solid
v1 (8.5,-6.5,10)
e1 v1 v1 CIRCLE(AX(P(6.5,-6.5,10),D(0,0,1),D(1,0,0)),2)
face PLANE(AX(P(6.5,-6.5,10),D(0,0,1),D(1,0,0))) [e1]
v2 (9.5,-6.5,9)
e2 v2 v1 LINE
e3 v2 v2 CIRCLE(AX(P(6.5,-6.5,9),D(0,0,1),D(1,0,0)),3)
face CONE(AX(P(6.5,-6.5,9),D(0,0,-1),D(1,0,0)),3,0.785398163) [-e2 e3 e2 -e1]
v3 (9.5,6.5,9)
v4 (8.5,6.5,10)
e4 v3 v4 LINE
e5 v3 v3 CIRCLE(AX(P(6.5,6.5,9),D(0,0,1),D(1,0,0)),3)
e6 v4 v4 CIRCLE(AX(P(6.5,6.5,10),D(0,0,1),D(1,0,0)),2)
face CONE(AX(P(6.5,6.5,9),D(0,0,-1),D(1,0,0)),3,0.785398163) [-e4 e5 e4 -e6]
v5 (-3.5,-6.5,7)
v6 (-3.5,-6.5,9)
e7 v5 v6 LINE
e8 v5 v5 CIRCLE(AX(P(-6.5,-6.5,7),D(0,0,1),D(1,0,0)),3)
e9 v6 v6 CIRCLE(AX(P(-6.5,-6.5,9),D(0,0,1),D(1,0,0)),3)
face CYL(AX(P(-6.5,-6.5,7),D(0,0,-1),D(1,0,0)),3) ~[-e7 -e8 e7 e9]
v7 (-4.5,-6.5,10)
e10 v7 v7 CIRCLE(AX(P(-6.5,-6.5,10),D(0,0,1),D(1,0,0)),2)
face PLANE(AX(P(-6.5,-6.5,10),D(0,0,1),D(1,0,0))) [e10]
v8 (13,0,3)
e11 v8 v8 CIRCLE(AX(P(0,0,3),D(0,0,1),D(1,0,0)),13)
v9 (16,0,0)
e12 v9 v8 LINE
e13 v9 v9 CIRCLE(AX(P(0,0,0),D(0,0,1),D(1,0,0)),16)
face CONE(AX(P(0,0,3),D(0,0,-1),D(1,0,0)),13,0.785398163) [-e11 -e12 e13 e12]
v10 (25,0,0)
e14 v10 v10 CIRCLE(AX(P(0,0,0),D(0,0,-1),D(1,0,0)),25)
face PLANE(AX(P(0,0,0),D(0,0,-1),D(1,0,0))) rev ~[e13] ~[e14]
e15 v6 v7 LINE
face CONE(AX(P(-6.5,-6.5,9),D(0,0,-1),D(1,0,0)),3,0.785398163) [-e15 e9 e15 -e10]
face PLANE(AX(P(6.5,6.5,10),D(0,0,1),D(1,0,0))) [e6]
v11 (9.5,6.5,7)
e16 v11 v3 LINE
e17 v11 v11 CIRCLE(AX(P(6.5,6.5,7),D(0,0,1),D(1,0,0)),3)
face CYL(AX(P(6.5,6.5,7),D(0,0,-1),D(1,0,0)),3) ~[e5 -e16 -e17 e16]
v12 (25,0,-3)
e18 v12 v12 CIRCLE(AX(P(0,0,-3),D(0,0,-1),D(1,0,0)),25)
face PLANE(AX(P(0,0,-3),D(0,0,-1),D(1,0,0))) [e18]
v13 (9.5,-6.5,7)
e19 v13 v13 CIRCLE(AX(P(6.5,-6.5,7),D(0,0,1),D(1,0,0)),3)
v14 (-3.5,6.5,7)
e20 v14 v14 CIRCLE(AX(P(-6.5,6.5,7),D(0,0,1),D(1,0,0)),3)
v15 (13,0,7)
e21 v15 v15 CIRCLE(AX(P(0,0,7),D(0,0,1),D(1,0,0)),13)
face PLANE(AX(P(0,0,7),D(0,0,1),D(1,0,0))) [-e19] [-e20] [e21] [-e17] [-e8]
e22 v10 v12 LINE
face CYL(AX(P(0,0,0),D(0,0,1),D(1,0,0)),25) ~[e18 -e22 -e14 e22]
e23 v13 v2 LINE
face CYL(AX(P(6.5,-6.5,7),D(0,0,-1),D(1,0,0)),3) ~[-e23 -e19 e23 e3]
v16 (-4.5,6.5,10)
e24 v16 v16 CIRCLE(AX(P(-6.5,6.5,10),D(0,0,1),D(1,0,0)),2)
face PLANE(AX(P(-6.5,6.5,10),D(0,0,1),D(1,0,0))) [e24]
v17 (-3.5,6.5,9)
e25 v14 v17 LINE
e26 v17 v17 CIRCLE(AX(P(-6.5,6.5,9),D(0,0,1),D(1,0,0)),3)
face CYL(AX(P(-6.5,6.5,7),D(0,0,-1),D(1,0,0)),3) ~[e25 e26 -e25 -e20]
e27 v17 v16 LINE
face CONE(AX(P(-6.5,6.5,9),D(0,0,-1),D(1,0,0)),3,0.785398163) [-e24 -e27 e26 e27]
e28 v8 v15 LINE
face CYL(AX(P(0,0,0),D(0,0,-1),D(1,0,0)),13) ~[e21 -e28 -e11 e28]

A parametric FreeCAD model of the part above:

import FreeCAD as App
import Part
import Sketcher
from FreeCAD import Vector


def edges_at(feature, points):
    """Names of the edges that pass closest to the given points."""
    edges = feature.Shape.Edges
    near = lambda p: min(range(len(edges)), key=lambda i: edges[i].distToShape(Part.Vertex(*p))[0])
    return sorted({f"Edge{near(p) + 1}" for p in points})

doc = App.newDocument("Part")
body = doc.addObject("PartDesign::Body", "Body")

sketch1 = body.newObject("Sketcher::SketchObject", "Sketch")
sketch1.AttachmentSupport = (doc.getObject("XY_Plane"), [""])
sketch1.MapMode = "FlatFace"
sketch1.addGeometry(Part.Circle(Vector(0, 0, 0), Vector(0, 0, 1), 13), False)
sketch1.addConstraint(Sketcher.Constraint("Coincident", 0, 3, -1, 1))
sketch1.addConstraint(Sketcher.Constraint("Diameter", 0, 26.0))
pad1 = body.newObject("PartDesign::Pad", "Pad")
pad1.Profile = sketch1
pad1.Length = 7

sketch2 = body.newObject("Sketcher::SketchObject", "Sketch001")
sketch2.AttachmentSupport = (doc.getObject("XY_Plane"), [""])
sketch2.MapMode = "FlatFace"
sketch2.AttachmentOffset = App.Placement(Vector(0, 0, 7), App.Rotation())
sketch2.addGeometry(Part.Circle(Vector(-6.5, 6.5, 0), Vector(0, 0, 1), 3), False)
sketch2.addGeometry(Part.Circle(Vector(-6.5, -6.5, 0), Vector(0, 0, 1), 3), False)
sketch2.addGeometry(Part.Circle(Vector(6.5, -6.5, 0), Vector(0, 0, 1), 3), False)
sketch2.addGeometry(Part.Circle(Vector(6.5, 6.5, 0), Vector(0, 0, 1), 3), False)
sketch2.addConstraint(Sketcher.Constraint("Equal", 0, 1))
sketch2.addConstraint(Sketcher.Constraint("Equal", 1, 2))
sketch2.addConstraint(Sketcher.Constraint("Equal", 2, 3))
sketch2.addConstraint(Sketcher.Constraint("Symmetric", 0, 3, 2, 3, -1, 1))
sketch2.addConstraint(Sketcher.Constraint("Symmetric", 1, 3, 3, 3, -1, 1))
sketch2.addConstraint(Sketcher.Constraint("Symmetric", 1, 3, 2, 3, -2))
sketch2.addConstraint(Sketcher.Constraint("Diameter", 0, 6.0))
sketch2.addConstraint(Sketcher.Constraint("DistanceY", 1, 3, 0, 3, 13.0))
sketch2.addConstraint(Sketcher.Constraint("DistanceX", 1, 3, 2, 3, 13.0))
pad2 = body.newObject("PartDesign::Pad", "Pad001")
pad2.Profile = sketch2
pad2.Length = 3
doc.recompute()

chamfer = body.newObject("PartDesign::Chamfer", "Chamfer")
chamfer.Base = (pad2, edges_at(pad2, [
    (-9.5, -6.5, 10),
    (3.5, -6.5, 10),
    (-9.5, 6.5, 10),
    (3.5, 6.5, 10),
]))
chamfer.Size = 1

sketch3 = body.newObject("Sketcher::SketchObject", "Sketch002")
sketch3.AttachmentSupport = (doc.getObject("XY_Plane"), [""])
sketch3.MapMode = "FlatFace"
sketch3.addGeometry(Part.Circle(Vector(0, 0, 0), Vector(0, 0, 1), 25), False)
sketch3.addConstraint(Sketcher.Constraint("Coincident", 0, 3, -1, 1))
sketch3.addConstraint(Sketcher.Constraint("Diameter", 0, 50.0))
pad3 = body.newObject("PartDesign::Pad", "Pad002")
pad3.Profile = sketch3
pad3.Length = 3
pad3.Reversed = True
doc.recompute()

chamfer2 = body.newObject("PartDesign::Chamfer", "Chamfer001")
chamfer2.Base = (pad3, edges_at(pad3, [(-13, 0, 0)]))
chamfer2.Size = 3

doc.recompute()
